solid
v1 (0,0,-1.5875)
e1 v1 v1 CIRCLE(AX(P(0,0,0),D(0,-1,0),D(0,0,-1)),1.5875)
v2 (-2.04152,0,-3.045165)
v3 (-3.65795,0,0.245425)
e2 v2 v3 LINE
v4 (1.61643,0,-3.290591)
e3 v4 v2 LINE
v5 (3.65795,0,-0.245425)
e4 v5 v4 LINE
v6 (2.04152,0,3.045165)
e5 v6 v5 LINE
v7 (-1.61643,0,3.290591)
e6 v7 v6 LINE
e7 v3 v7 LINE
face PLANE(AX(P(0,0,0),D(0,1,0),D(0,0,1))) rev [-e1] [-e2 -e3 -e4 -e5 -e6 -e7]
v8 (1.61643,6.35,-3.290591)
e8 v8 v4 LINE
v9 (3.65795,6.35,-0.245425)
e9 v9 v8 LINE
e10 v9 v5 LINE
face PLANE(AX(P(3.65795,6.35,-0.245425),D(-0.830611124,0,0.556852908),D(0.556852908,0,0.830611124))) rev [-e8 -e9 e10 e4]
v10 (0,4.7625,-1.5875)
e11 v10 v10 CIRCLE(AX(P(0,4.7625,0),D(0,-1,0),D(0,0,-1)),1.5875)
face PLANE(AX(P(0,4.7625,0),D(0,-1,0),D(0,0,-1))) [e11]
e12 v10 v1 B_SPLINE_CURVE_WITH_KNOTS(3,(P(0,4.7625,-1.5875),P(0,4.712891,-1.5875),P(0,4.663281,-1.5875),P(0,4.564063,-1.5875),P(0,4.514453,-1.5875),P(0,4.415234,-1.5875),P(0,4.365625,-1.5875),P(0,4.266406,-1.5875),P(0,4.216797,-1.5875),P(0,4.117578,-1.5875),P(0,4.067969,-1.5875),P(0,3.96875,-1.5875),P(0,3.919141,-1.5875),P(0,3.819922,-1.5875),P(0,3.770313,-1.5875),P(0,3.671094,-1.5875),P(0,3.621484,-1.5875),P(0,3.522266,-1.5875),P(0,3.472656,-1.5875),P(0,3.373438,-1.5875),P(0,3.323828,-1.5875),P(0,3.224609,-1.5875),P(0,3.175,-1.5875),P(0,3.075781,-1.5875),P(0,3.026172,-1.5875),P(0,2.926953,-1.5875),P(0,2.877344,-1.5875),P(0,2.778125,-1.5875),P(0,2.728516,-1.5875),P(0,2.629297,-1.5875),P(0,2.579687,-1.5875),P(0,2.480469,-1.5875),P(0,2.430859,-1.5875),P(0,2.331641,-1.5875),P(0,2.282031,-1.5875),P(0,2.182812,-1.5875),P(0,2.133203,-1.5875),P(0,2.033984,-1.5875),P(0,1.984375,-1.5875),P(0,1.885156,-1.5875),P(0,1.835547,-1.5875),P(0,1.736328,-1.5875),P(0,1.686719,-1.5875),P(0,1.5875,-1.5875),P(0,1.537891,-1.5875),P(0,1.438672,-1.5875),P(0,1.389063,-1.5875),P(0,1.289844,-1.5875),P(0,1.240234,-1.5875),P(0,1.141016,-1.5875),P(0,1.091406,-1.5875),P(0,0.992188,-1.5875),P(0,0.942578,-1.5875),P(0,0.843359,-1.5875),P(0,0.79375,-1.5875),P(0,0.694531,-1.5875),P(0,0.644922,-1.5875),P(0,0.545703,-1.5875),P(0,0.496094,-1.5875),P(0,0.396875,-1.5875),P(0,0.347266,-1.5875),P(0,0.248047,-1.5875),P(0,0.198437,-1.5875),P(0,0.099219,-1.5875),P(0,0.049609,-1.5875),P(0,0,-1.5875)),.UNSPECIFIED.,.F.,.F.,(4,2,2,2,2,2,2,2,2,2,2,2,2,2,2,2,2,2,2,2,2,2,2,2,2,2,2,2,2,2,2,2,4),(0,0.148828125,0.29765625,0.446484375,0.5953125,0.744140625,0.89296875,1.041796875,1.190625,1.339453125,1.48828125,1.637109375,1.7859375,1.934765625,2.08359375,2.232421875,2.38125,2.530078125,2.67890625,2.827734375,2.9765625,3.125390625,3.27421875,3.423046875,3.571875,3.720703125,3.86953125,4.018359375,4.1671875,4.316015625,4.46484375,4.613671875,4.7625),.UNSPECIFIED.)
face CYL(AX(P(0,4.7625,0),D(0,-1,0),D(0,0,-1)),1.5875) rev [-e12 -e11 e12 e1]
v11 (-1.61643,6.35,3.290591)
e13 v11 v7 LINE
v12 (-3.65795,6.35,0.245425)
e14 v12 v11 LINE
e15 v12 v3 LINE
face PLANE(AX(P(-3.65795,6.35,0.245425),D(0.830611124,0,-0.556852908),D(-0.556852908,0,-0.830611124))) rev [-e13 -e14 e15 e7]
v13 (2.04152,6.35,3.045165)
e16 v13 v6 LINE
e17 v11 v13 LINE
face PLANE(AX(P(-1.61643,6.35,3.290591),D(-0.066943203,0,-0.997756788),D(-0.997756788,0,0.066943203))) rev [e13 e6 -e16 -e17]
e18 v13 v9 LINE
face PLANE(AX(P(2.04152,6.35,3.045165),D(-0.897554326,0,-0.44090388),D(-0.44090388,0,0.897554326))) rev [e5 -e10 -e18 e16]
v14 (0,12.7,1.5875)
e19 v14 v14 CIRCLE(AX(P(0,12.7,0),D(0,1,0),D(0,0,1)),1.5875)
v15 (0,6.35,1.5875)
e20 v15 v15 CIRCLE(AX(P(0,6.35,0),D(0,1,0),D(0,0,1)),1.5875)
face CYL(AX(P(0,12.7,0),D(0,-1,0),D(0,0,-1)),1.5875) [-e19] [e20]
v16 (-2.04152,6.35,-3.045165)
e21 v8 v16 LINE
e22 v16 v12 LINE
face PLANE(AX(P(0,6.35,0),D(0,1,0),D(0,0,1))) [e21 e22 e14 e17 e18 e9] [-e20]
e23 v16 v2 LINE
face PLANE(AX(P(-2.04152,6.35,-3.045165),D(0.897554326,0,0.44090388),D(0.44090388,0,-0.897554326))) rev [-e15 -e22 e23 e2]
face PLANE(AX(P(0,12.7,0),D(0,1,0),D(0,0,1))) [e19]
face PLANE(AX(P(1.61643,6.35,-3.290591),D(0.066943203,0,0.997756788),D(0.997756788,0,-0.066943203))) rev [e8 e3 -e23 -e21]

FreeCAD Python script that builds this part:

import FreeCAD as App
import Part
import Sketcher
Q = App.Units.Quantity


def add_polygon(sketch, points):
    """Adds a closed chain of lines whose ends are joined by coincident constraints."""
    first, n = sketch.GeometryCount, len(points)
    for a, b in zip(points, points[1:] + points[:1]):
        sketch.addGeometry(Part.LineSegment(App.Vector(*a, 0), App.Vector(*b, 0)), False)
    for i in range(n):
        sketch.addConstraint(Sketcher.Constraint("Coincident", first + i, 2, first + (i + 1) % n, 1))

doc = App.newDocument("Part")
body = doc.addObject("PartDesign::Body", "Body")

# Sketch on XZ plane
sketch1 = body.newObject("Sketcher::SketchObject", "Sketch")
sketch1.AttachmentSupport = (doc.getObject("XZ_Plane"), [""])
sketch1.MapMode = "FlatFace"
add_polygon(sketch1, [(1.6, -3.3), (-2, -3), (-3.7, 0.2), (-1.6, 3.3), (2, 3), (3.7, -0.2)])  # lines 0-5
sketch1.addConstraint([
    Sketcher.Constraint("Symmetric", 0, 2, 3, 2, -1, 1),
    Sketcher.Constraint("Symmetric", 1, 2, 4, 2, -1, 1),
    Sketcher.Constraint("Symmetric", 2, 2, 5, 2, -1, 1),
    Sketcher.Constraint("Equal", 0, 1),
    Sketcher.Constraint("Equal", 1, 2),
    Sketcher.Constraint("DistanceX", 1, 2, 4, 2, 7.3159),
    Sketcher.Constraint("DistanceX", 0, 2, -1, 1, 2.04152),
    Sketcher.Constraint("DistanceX", 2, 2, -1, 1, 1.61643),
    Sketcher.Constraint("DistanceY", -1, 1, 2, 2, 3.290591),
])
pad1 = body.newObject("PartDesign::Pad", "Pad")
pad1.Profile = sketch1
pad1.Length = Q("0.25 in")
pad1.Reversed = True

# Sketch on XZ plane
sketch2 = body.newObject("Sketcher::SketchObject", "Sketch001")
sketch2.AttachmentSupport = (doc.getObject("XZ_Plane"), [""])
sketch2.MapMode = "FlatFace"
sketch2.AttachmentOffset = App.Placement(App.Vector(0, 0, -0.25 * 25.4), App.Rotation())
sketch2.addGeometry(Part.Circle(App.Vector(0, 0, 0), App.Vector(0, 0, 1), 1.6), False)
sketch2.addConstraint([
    Sketcher.Constraint("Coincident", 0, 3, -1, 1),
    Sketcher.Constraint("Diameter", 0, Q("0.125 in")),
])
pad2 = body.newObject("PartDesign::Pad", "Pad001")
pad2.Profile = sketch2
pad2.Length = Q("0.25 in")
pad2.Reversed = True

# Sketch on XZ plane
sketch3 = body.newObject("Sketcher::SketchObject", "Sketch002")
sketch3.AttachmentSupport = (doc.getObject("XZ_Plane"), [""])
sketch3.MapMode = "FlatFace"
sketch3.addGeometry(Part.Circle(App.Vector(0, 0, 0), App.Vector(0, 0, 1), 1.6), False)
sketch3.addConstraint([
    Sketcher.Constraint("Coincident", 0, 3, -1, 1),
    Sketcher.Constraint("Diameter", 0, Q("0.125 in")),
])
pocket1 = body.newObject("PartDesign::Pocket", "Pocket")
pocket1.Profile = sketch3
pocket1.Length = Q("0.1875 in")

doc.recompute()
